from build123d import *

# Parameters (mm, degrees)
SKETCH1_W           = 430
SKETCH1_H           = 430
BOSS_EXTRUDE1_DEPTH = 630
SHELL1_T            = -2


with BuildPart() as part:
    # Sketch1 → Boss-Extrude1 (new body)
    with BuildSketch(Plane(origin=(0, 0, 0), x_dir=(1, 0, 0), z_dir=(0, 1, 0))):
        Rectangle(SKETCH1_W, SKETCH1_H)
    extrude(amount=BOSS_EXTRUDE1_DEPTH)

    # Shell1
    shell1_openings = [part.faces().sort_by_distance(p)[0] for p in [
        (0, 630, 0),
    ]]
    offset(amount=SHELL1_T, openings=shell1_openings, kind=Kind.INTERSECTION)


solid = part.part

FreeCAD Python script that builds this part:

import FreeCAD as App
import Part
import Sketcher


def faces_at(feature, points):
    """Names of the faces that lie closest to the given points."""
    faces = feature.Shape.Faces
    near = lambda p: min(range(len(faces)), key=lambda i: faces[i].distToShape(Part.Vertex(*p))[0])
    return sorted({f"Face{near(p) + 1}" for p in points})


def add_polygon(sketch, points):
    """Adds a closed chain of lines whose ends are joined by coincident constraints."""
    first, n = sketch.GeometryCount, len(points)
    for a, b in zip(points, points[1:] + points[:1]):
        sketch.addGeometry(Part.LineSegment(App.Vector(*a, 0), App.Vector(*b, 0)), False)
    for i in range(n):
        sketch.addConstraint(Sketcher.Constraint("Coincident", first + i, 2, first + (i + 1) % n, 1))

doc = App.newDocument("Part")
body = doc.addObject("PartDesign::Body", "Body")

# Sketch on XZ plane
sketch1 = body.newObject("Sketcher::SketchObject", "Sketch")
sketch1.AttachmentSupport = (doc.getObject("XZ_Plane"), [""])
sketch1.MapMode = "FlatFace"
add_polygon(sketch1, [(-215, -215), (-215, 215), (215, 215), (215, -215)])  # lines 0-3
sketch1.addConstraint(Sketcher.Constraint("Vertical", 0))
sketch1.addConstraint(Sketcher.Constraint("Horizontal", 1))
sketch1.addConstraint(Sketcher.Constraint("Vertical", 2))
sketch1.addConstraint(Sketcher.Constraint("Horizontal", 3))
sketch1.addConstraint(Sketcher.Constraint("Symmetric", 0, 2, 2, 2, -1, 1))
sketch1.addConstraint(Sketcher.Constraint("Equal", 3, 0))
sketch1.addConstraint(Sketcher.Constraint("DistanceX", 1, 1, 1, 2, 430.0))
pad1 = body.newObject("PartDesign::Pad", "Pad")
pad1.Profile = sketch1
pad1.Length = 630
pad1.Reversed = True
doc.recompute()

thickness = body.newObject("PartDesign::Thickness", "Thickness")
thickness.Base = (pad1, faces_at(pad1, [(0, 630, 0)]))
thickness.Value = 2
thickness.Reversed = True
thickness.Join = "Intersection"

doc.recompute()
